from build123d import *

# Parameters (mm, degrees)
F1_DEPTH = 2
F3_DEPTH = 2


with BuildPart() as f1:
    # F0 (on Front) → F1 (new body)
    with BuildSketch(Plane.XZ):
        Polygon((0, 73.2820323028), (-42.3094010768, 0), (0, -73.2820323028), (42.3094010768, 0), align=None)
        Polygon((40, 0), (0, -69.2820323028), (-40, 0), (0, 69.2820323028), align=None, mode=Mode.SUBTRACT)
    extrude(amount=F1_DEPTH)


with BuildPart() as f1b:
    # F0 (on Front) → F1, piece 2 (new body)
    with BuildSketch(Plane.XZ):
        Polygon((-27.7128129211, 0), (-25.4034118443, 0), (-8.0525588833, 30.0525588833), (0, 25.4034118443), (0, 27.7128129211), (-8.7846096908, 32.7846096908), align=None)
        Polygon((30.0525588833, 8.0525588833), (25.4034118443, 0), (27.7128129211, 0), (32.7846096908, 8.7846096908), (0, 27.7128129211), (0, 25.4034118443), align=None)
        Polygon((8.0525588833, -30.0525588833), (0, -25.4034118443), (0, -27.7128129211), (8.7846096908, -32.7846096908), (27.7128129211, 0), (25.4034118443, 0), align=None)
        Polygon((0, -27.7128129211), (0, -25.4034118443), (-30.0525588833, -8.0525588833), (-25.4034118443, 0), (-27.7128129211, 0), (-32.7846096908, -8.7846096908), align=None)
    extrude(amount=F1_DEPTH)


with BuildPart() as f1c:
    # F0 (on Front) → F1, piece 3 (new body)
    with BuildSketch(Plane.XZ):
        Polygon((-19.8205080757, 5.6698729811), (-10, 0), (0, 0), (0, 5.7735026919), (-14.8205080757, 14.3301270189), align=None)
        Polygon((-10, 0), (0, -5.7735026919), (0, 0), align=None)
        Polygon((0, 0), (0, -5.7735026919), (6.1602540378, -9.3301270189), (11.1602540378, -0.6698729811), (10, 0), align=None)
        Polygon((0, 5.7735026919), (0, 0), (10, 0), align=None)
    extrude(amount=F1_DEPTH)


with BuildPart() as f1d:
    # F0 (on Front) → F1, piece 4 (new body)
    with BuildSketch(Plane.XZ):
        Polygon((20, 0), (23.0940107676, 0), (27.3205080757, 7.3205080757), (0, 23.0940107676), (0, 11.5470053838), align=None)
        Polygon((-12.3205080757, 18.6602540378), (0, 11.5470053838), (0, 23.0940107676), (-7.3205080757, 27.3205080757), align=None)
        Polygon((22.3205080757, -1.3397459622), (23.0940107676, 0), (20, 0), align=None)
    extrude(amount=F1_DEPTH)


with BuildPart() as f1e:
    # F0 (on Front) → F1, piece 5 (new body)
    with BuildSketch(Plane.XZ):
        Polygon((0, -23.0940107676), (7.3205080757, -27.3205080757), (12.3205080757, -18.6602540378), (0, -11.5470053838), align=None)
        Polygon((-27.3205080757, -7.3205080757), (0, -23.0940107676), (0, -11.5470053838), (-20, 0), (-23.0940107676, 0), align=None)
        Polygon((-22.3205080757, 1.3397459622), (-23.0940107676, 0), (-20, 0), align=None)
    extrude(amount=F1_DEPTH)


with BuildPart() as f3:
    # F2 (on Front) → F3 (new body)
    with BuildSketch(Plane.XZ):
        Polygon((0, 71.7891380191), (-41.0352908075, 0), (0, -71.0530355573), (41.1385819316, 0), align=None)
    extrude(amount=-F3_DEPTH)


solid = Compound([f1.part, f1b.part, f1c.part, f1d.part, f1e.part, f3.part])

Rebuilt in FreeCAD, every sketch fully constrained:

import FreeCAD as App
import Part
import Sketcher

V = App.Vector
Q = App.Units.Quantity


def add_polygon(sketch, points):
    """Adds a closed chain of lines whose ends are joined by coincident constraints."""
    first, n = sketch.GeometryCount, len(points)
    for a, b in zip(points, points[1:] + points[:1]):
        sketch.addGeometry(Part.LineSegment(App.Vector(*a, 0), App.Vector(*b, 0)), False)
    for i in range(n):
        sketch.addConstraint(Sketcher.Constraint("Coincident", first + i, 2, first + (i + 1) % n, 1))

doc = App.newDocument("Part")
body = doc.addObject("PartDesign::Body", "Body")

# Sketch on XZ plane
sketch1 = body.newObject("Sketcher::SketchObject", "Sketch")
sketch1.AttachmentSupport = (doc.getObject("XZ_Plane"), [""])
sketch1.MapMode = "FlatFace"
add_polygon(sketch1, [(0, 73), (-42, 0), (0, -73), (42, 0)])  # lines 0-3
add_polygon(sketch1, [(0, 69), (40, 0), (0, -69), (-40, 0)])  # lines 4-7
sketch1.addConstraint([
    Sketcher.Constraint("Symmetric", 0, 2, 2, 2, -1, 1),
    Sketcher.Constraint("Symmetric", 1, 2, 3, 2, -1, 1),
    Sketcher.Constraint("Symmetric", 4, 2, 6, 2, -1, 1),
    Sketcher.Constraint("Symmetric", 5, 2, 7, 2, -1, 1),
    Sketcher.Constraint("PointOnObject", 0, 2, -1),
    Sketcher.Constraint("PointOnObject", 1, 2, -2),
    Sketcher.Constraint("PointOnObject", 4, 2, -1),
    Sketcher.Constraint("PointOnObject", 5, 2, -2),
    Sketcher.Constraint("Parallel", 3, 4),
    Sketcher.Constraint("Angle", 0, Q("-120 deg")),
    Sketcher.Constraint("Distance", 4, 80.0),
    Sketcher.Constraint("DistanceY", 1, 2, 5, 2, 4.0),
])
pad1 = body.newObject("PartDesign::Pad", "Pad")
pad1.Profile = sketch1
pad1.Length = 2
body2 = doc.addObject("PartDesign::Body", "Body001")

# Sketch on XZ plane
sketch2 = body2.newObject("Sketcher::SketchObject", "Sketch001")
sketch2.AttachmentSupport = (doc.getObject("XZ_Plane001"), [""])
sketch2.MapMode = "FlatFace"
add_polygon(sketch2, [(0, -28), (9, -33), (28, 0), (33, 9), (0, 28), (-9, 33), (-28, 0), (-33, -9)])  # lines 0-7
add_polygon(sketch2, [(-25, 0), (-8, 30), (0, 25), (30, 8), (25, 0), (8, -30), (0, -25), (-30, -8)])  # lines 8-15
sketch2.addConstraint([
    Sketcher.Constraint("Symmetric", 0, 2, 4, 2, -1, 1),
    Sketcher.Constraint("Symmetric", 1, 2, 5, 2, -1, 1),
    Sketcher.Constraint("Symmetric", 2, 2, 6, 2, -1, 1),
    Sketcher.Constraint("Symmetric", 3, 2, 7, 2, -1, 1),
    Sketcher.Constraint("Symmetric", 8, 2, 12, 2, -1, 1),
    Sketcher.Constraint("Symmetric", 9, 2, 13, 2, -1, 1),
    Sketcher.Constraint("Symmetric", 10, 2, 14, 2, -1, 1),
    Sketcher.Constraint("Symmetric", 11, 2, 15, 2, -1, 1),
    Sketcher.Constraint("PointOnObject", 1, 2, -1),
    Sketcher.Constraint("PointOnObject", 3, 2, -2),
    Sketcher.Constraint("PointOnObject", 9, 2, -2),
    Sketcher.Constraint("PointOnObject", 11, 2, -1),
    Sketcher.Constraint("Perpendicular", 0, 1),
    Sketcher.Constraint("Parallel", 1, 2),
    Sketcher.Constraint("Perpendicular", 2, 3),
    Sketcher.Constraint("Perpendicular", 7, 8),
    Sketcher.Constraint("Perpendicular", 8, 9),
    Sketcher.Constraint("Parallel", 9, 10),
    Sketcher.Constraint("Perpendicular", 10, 11),
    Sketcher.Constraint("Equal", 0, 2),
    Sketcher.Constraint("Equal", 8, 10),
    Sketcher.Constraint("Angle", 0, Q("-30 deg")),
    Sketcher.Constraint("DistanceX", 0, 2, 2, 2, 24.0),
    Sketcher.Constraint("DistanceY", 10, 2, 8, 2, 22.0),
])
pad2 = body2.newObject("PartDesign::Pad", "Pad001")
pad2.Profile = sketch2
pad2.Length = 2
body3 = doc.addObject("PartDesign::Body", "Body002")

# Sketch on XZ plane
sketch3 = body3.newObject("Sketcher::SketchObject", "Sketch002")
sketch3.AttachmentSupport = (doc.getObject("XZ_Plane002"), [""])
sketch3.MapMode = "FlatFace"
add_polygon(sketch3, [(-19.8, 5.7), (6.2, -9.3), (11.2, -0.7), (10, 0), (0, 5.8), (-14.8, 14.3)])  # lines 0-5
sketch3.addConstraint([
    Sketcher.Constraint("PointOnObject", 2, 2, -1),
    Sketcher.Constraint("PointOnObject", 3, 2, -2),
    Sketcher.Constraint("Perpendicular", 0, 1),
    Sketcher.Constraint("Perpendicular", 1, 2),
    Sketcher.Constraint("Parallel", 2, 3),
    Sketcher.Constraint("Parallel", 3, 4),
    Sketcher.Constraint("Perpendicular", 4, 5),
    Sketcher.Constraint("Angle", 0, Q("-30 deg")),
    Sketcher.Constraint("Distance", 0, 30.0),
    Sketcher.Constraint("Distance", 1, 10.0),
    Sketcher.Constraint("DistanceX", -1, 1, 2, 2, 10.0),
    Sketcher.Constraint("Distance", 4, 17.113249),
])
pad3 = body3.newObject("PartDesign::Pad", "Pad002")
pad3.Profile = sketch3
pad3.Length = 2
body4 = doc.addObject("PartDesign::Body", "Body003")

# Sketch on XZ plane
sketch4 = body4.newObject("Sketcher::SketchObject", "Sketch003")
sketch4.AttachmentSupport = (doc.getObject("XZ_Plane003"), [""])
sketch4.MapMode = "FlatFace"
add_polygon(sketch4, [(23.1, 0), (27.3, 7.3), (-7.3, 27.3), (-12.3, 18.7), (0, 11.5), (20, 0), (22.3, -1.3)])  # lines 0-6
sketch4.addConstraint([
    Sketcher.Constraint("PointOnObject", 3, 2, -2),
    Sketcher.Constraint("PointOnObject", 4, 2, -1),
    Sketcher.Constraint("PointOnObject", 6, 2, -1),
    Sketcher.Constraint("Perpendicular", 0, 1),
    Sketcher.Constraint("Perpendicular", 1, 2),
    Sketcher.Constraint("Perpendicular", 2, 3),
    Sketcher.Constraint("Parallel", 3, 4),
    Sketcher.Constraint("Parallel", 4, 5),
    Sketcher.Constraint("Perpendicular", 5, 6),
    Sketcher.Constraint("Angle", 0, Q("60 deg")),
    Sketcher.Constraint("Distance", 1, 40.0),
    Sketcher.Constraint("Distance", 2, 10.0),
    Sketcher.Constraint("DistanceX", -1, 1, 4, 2, 20.0),
    Sketcher.Constraint("Distance", 5, 2.679492),
])
pad4 = body4.newObject("PartDesign::Pad", "Pad003")
pad4.Profile = sketch4
pad4.Length = 2
body5 = doc.addObject("PartDesign::Body", "Body004")

# Sketch on XZ plane
sketch5 = body5.newObject("Sketcher::SketchObject", "Sketch004")
sketch5.AttachmentSupport = (doc.getObject("XZ_Plane004"), [""])
sketch5.MapMode = "FlatFace"
add_polygon(sketch5, [(7.3, -27.3), (12.3, -18.7), (0, -11.5), (-20, 0), (-22.3, 1.3), (-23.1, 0), (-27.3, -7.3)])  # lines 0-6
sketch5.addConstraint([
    Sketcher.Constraint("PointOnObject", 1, 2, -2),
    Sketcher.Constraint("PointOnObject", 2, 2, -1),
    Sketcher.Constraint("PointOnObject", 4, 2, -1),
    Sketcher.Constraint("Perpendicular", 0, 1),
    Sketcher.Constraint("Parallel", 1, 2),
    Sketcher.Constraint("Parallel", 2, 3),
    Sketcher.Constraint("Perpendicular", 3, 4),
    Sketcher.Constraint("Parallel", 4, 5),
    Sketcher.Constraint("Perpendicular", 5, 6),
    Sketcher.Constraint("Angle", 0, Q("60 deg")),
    Sketcher.Constraint("Distance", 0, 10.0),
    Sketcher.Constraint("Distance", 6, 40.0),
    Sketcher.Constraint("DistanceX", 2, 2, -1, 1, 20.0),
    Sketcher.Constraint("Distance", 3, 2.679492),
])
pad5 = body5.newObject("PartDesign::Pad", "Pad004")
pad5.Profile = sketch5
pad5.Length = 2
body6 = doc.addObject("PartDesign::Body", "Body005")

# Sketch on XZ plane
sketch6 = body6.newObject("Sketcher::SketchObject", "Sketch005")
sketch6.AttachmentSupport = (doc.getObject("XZ_Plane005"), [""])
sketch6.MapMode = "FlatFace"
add_polygon(sketch6, [(0, 72), (-41, 0), (0, -71), (41, 0)])  # lines 0-3
sketch6.addConstraint([
    Sketcher.Constraint("PointOnObject", 0, 2, -1),
    Sketcher.Constraint("PointOnObject", 1, 2, -2),
    Sketcher.Constraint("PointOnObject", 2, 2, -1),
    Sketcher.Constraint("PointOnObject", 3, 2, -2),
    Sketcher.Constraint("Distance", 1, 82.05138),
    Sketcher.Constraint("Distance", 3, 82.740941),
    Sketcher.Constraint("DistanceX", 0, 2, -1, 1, 41.035291),
    Sketcher.Constraint("DistanceX", -1, 1, 2, 2, 41.138582),
])
pad6 = body6.newObject("PartDesign::Pad", "Pad005")
pad6.Profile = sketch6
pad6.Length = 2
pad6.Reversed = True

doc.recompute()
